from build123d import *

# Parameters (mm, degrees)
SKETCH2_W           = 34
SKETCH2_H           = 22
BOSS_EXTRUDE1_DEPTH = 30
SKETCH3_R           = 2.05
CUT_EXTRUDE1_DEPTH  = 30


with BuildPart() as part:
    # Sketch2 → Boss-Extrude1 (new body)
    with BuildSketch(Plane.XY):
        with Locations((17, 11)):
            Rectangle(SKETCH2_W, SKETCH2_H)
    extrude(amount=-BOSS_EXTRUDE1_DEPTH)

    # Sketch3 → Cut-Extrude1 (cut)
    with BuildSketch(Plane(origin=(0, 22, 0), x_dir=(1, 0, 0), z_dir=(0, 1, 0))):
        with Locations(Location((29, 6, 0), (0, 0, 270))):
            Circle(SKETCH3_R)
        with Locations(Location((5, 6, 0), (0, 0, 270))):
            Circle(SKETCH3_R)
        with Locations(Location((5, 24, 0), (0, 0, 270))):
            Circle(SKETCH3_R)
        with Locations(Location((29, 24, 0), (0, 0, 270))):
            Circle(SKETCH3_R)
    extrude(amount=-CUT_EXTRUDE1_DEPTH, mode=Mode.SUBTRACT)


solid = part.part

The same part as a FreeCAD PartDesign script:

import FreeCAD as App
import Part
import Sketcher

V = App.Vector
Q = App.Units.Quantity

doc = App.newDocument("Part")
body = doc.addObject("PartDesign::Body", "Body")

sketch1 = body.newObject("Sketcher::SketchObject", "Sketch")
sketch1.AttachmentSupport = (doc.getObject("XY_Plane"), [""])
sketch1.MapMode = "FlatFace"
sketch1.addGeometry(Part.LineSegment(V(0, 22, 0), V(0, 0, 0)), False)
sketch1.addGeometry(Part.LineSegment(V(0, 0, 0), V(34, 0, 0)), False)
sketch1.addGeometry(Part.LineSegment(V(34, 0, 0), V(34, 22, 0)), False)
sketch1.addGeometry(Part.LineSegment(V(34, 22, 0), V(0, 22, 0)), False)
sketch1.addConstraint(Sketcher.Constraint("Coincident", 0, 2, 1, 1))
sketch1.addConstraint(Sketcher.Constraint("Coincident", 1, 2, 2, 1))
sketch1.addConstraint(Sketcher.Constraint("Coincident", 2, 2, 3, 1))
sketch1.addConstraint(Sketcher.Constraint("Coincident", 3, 2, 0, 1))
sketch1.addConstraint(Sketcher.Constraint("Vertical", 0))
sketch1.addConstraint(Sketcher.Constraint("Horizontal", 1))
sketch1.addConstraint(Sketcher.Constraint("Vertical", 2))
sketch1.addConstraint(Sketcher.Constraint("Horizontal", 3))
sketch1.addConstraint(Sketcher.Constraint("Coincident", 0, 2, -1, 1))
sketch1.addConstraint(Sketcher.Constraint("DistanceX", 1, 1, 1, 2, Q("34 mm")))
sketch1.addConstraint(Sketcher.Constraint("DistanceY", 0, 2, 0, 1, Q("22 mm")))
pad1 = body.newObject("PartDesign::Pad", "Pad")
pad1.Profile = sketch1
pad1.Length = 30
pad1.Reversed = True

sketch2 = body.newObject("Sketcher::SketchObject", "Sketch001")
sketch2.AttachmentSupport = (doc.getObject("XZ_Plane"), [""])
sketch2.MapMode = "FlatFace"
sketch2.AttachmentOffset = App.Placement(V(0, 0, -22), App.Rotation())
sketch2.addGeometry(Part.Circle(V(29, -6, 0), V(0, 0, 1), 2), False)
sketch2.addGeometry(Part.Circle(V(5, -6, 0), V(0, 0, 1), 2), False)
sketch2.addGeometry(Part.Circle(V(5, -24, 0), V(0, 0, 1), 2), False)
sketch2.addGeometry(Part.Circle(V(29, -24, 0), V(0, 0, 1), 2), False)
sketch2.addConstraint(Sketcher.Constraint("Equal", 0, 1))
sketch2.addConstraint(Sketcher.Constraint("Equal", 1, 2))
sketch2.addConstraint(Sketcher.Constraint("Equal", 2, 3))
sketch2.addConstraint(Sketcher.Constraint("Horizontal", 0, 3, 1, 3))
sketch2.addConstraint(Sketcher.Constraint("Horizontal", 2, 3, 3, 3))
sketch2.addConstraint(Sketcher.Constraint("Vertical", 1, 3, 2, 3))
sketch2.addConstraint(Sketcher.Constraint("Vertical", 0, 3, 3, 3))
sketch2.addConstraint(Sketcher.Constraint("Diameter", 0, Q("4.1 mm")))
sketch2.addConstraint(Sketcher.Constraint("DistanceX", -1, 1, 0, 3, Q("29 mm")))
sketch2.addConstraint(Sketcher.Constraint("DistanceY", 0, 3, -1, 1, Q("6 mm")))
sketch2.addConstraint(Sketcher.Constraint("DistanceX", -1, 1, 1, 3, Q("5 mm")))
sketch2.addConstraint(Sketcher.Constraint("DistanceY", 2, 3, -1, 1, Q("24 mm")))
pocket1 = body.newObject("PartDesign::Pocket", "Pocket")
pocket1.Profile = sketch2
pocket1.Length = 30
pocket1.Reversed = True

doc.recompute()
